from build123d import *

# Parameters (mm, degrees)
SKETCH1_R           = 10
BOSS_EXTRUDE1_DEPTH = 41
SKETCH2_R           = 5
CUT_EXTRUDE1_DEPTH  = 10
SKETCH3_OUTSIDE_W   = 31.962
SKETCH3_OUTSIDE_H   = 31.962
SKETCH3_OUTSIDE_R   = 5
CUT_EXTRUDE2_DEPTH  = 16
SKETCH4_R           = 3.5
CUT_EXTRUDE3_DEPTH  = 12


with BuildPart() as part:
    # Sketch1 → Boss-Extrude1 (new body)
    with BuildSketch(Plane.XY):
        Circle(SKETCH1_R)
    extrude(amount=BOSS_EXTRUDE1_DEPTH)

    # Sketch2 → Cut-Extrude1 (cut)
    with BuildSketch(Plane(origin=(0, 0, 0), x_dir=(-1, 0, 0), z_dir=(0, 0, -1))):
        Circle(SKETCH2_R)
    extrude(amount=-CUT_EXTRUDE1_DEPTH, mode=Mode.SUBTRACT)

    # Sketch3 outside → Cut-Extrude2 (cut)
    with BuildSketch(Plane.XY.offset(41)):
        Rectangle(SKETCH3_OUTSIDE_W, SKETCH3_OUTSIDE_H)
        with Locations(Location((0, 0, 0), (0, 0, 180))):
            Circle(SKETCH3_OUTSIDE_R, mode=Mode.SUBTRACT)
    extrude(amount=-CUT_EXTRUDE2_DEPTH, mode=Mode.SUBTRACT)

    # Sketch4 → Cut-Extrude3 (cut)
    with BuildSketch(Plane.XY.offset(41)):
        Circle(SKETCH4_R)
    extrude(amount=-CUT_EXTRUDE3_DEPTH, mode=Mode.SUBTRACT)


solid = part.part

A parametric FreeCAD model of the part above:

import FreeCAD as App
import Part
import Sketcher

doc = App.newDocument("Part")
params = doc.addObject("Spreadsheet::Sheet", "Params")
for row, (alias, value) in enumerate([
    ("sketch1_diameter", "20 mm"),
    ("pad1_length", "41 mm"),
    ("sketch2_diameter", "10 mm"),
    ("pocket1_length", "10 mm"),
    ("sketch3_diameter", "10 mm"),
    ("pocket2_length", "16 mm"),
    ("sketch4_diameter", "7 mm"),
    ("pocket3_length", "12 mm"),
], start=1):
    params.set(f"A{row}", alias)
    params.set(f"B{row}", "=" + value)
    params.setAlias(f"B{row}", alias)

body = doc.addObject("PartDesign::Body", "Body")

sketch1 = body.newObject("Sketcher::SketchObject", "Sketch")
sketch1.AttachmentSupport = (doc.getObject("XY_Plane"), [""])
sketch1.MapMode = "FlatFace"
sketch1.addGeometry(Part.Circle(App.Vector(0, 0, 0), App.Vector(0, 0, 1), 10), False)
sketch1.addConstraint(Sketcher.Constraint("Coincident", 0, 3, -1, 1))
sketch1.addConstraint(Sketcher.Constraint("Diameter", 0, 20.0))
sketch1.setExpression("Constraints[1]", "Params.sketch1_diameter")
pad1 = body.newObject("PartDesign::Pad", "Pad")
pad1.Profile = sketch1
pad1.setExpression("Length", "Params.pad1_length")

sketch2 = body.newObject("Sketcher::SketchObject", "Sketch001")
sketch2.AttachmentSupport = (doc.getObject("XY_Plane"), [""])
sketch2.MapMode = "FlatFace"
sketch2.addGeometry(Part.Circle(App.Vector(0, 0, 0), App.Vector(0, 0, 1), 5), False)
sketch2.addConstraint(Sketcher.Constraint("Coincident", 0, 3, -1, 1))
sketch2.addConstraint(Sketcher.Constraint("Diameter", 0, 10.0))
sketch2.setExpression("Constraints[1]", "Params.sketch2_diameter")
pocket1 = body.newObject("PartDesign::Pocket", "Pocket")
pocket1.Profile = sketch2
pocket1.setExpression("Length", "Params.pocket1_length")
pocket1.Reversed = True

sketch3 = body.newObject("Sketcher::SketchObject", "Sketch002")
sketch3.AttachmentSupport = (doc.getObject("XY_Plane"), [""])
sketch3.MapMode = "FlatFace"
sketch3.AttachmentOffset = App.Placement(App.Vector(0, 0, 41), App.Rotation())
sketch3.addGeometry(Part.LineSegment(App.Vector(-16, 16, 0), App.Vector(-16, -16, 0)), False)
sketch3.addGeometry(Part.LineSegment(App.Vector(-16, -16, 0), App.Vector(16, -16, 0)), False)
sketch3.addGeometry(Part.LineSegment(App.Vector(16, -16, 0), App.Vector(16, 16, 0)), False)
sketch3.addGeometry(Part.LineSegment(App.Vector(16, 16, 0), App.Vector(-16, 16, 0)), False)
sketch3.addGeometry(Part.Circle(App.Vector(0, 0, 0), App.Vector(0, 0, 1), 5), False)
sketch3.addConstraint(Sketcher.Constraint("Coincident", 0, 2, 1, 1))
sketch3.addConstraint(Sketcher.Constraint("Coincident", 1, 2, 2, 1))
sketch3.addConstraint(Sketcher.Constraint("Coincident", 2, 2, 3, 1))
sketch3.addConstraint(Sketcher.Constraint("Coincident", 3, 2, 0, 1))
sketch3.addConstraint(Sketcher.Constraint("Vertical", 0))
sketch3.addConstraint(Sketcher.Constraint("Horizontal", 1))
sketch3.addConstraint(Sketcher.Constraint("Vertical", 2))
sketch3.addConstraint(Sketcher.Constraint("Horizontal", 3))
sketch3.addConstraint(Sketcher.Constraint("Coincident", 4, 3, -1, 1))
sketch3.addConstraint(Sketcher.Constraint("Symmetric", 0, 2, 2, 2, -1, 1))
sketch3.addConstraint(Sketcher.Constraint("Equal", 3, 0))
sketch3.addConstraint(Sketcher.Constraint("Diameter", 4, 10.0))
sketch3.addConstraint(Sketcher.Constraint("DistanceX", 1, 1, 1, 2, 31.962))
sketch3.setExpression("Constraints[11]", "Params.sketch3_diameter")
pocket2 = body.newObject("PartDesign::Pocket", "Pocket001")
pocket2.Profile = sketch3
pocket2.setExpression("Length", "Params.pocket2_length")

sketch4 = body.newObject("Sketcher::SketchObject", "Sketch003")
sketch4.AttachmentSupport = (doc.getObject("XY_Plane"), [""])
sketch4.MapMode = "FlatFace"
sketch4.AttachmentOffset = App.Placement(App.Vector(0, 0, 41), App.Rotation())
sketch4.addGeometry(Part.Circle(App.Vector(0, 0, 0), App.Vector(0, 0, 1), 3.5), False)
sketch4.addConstraint(Sketcher.Constraint("Coincident", 0, 3, -1, 1))
sketch4.addConstraint(Sketcher.Constraint("Diameter", 0, 7.0))
sketch4.setExpression("Constraints[1]", "Params.sketch4_diameter")
pocket3 = body.newObject("PartDesign::Pocket", "Pocket002")
pocket3.Profile = sketch4
pocket3.setExpression("Length", "Params.pocket3_length")

doc.recompute()
